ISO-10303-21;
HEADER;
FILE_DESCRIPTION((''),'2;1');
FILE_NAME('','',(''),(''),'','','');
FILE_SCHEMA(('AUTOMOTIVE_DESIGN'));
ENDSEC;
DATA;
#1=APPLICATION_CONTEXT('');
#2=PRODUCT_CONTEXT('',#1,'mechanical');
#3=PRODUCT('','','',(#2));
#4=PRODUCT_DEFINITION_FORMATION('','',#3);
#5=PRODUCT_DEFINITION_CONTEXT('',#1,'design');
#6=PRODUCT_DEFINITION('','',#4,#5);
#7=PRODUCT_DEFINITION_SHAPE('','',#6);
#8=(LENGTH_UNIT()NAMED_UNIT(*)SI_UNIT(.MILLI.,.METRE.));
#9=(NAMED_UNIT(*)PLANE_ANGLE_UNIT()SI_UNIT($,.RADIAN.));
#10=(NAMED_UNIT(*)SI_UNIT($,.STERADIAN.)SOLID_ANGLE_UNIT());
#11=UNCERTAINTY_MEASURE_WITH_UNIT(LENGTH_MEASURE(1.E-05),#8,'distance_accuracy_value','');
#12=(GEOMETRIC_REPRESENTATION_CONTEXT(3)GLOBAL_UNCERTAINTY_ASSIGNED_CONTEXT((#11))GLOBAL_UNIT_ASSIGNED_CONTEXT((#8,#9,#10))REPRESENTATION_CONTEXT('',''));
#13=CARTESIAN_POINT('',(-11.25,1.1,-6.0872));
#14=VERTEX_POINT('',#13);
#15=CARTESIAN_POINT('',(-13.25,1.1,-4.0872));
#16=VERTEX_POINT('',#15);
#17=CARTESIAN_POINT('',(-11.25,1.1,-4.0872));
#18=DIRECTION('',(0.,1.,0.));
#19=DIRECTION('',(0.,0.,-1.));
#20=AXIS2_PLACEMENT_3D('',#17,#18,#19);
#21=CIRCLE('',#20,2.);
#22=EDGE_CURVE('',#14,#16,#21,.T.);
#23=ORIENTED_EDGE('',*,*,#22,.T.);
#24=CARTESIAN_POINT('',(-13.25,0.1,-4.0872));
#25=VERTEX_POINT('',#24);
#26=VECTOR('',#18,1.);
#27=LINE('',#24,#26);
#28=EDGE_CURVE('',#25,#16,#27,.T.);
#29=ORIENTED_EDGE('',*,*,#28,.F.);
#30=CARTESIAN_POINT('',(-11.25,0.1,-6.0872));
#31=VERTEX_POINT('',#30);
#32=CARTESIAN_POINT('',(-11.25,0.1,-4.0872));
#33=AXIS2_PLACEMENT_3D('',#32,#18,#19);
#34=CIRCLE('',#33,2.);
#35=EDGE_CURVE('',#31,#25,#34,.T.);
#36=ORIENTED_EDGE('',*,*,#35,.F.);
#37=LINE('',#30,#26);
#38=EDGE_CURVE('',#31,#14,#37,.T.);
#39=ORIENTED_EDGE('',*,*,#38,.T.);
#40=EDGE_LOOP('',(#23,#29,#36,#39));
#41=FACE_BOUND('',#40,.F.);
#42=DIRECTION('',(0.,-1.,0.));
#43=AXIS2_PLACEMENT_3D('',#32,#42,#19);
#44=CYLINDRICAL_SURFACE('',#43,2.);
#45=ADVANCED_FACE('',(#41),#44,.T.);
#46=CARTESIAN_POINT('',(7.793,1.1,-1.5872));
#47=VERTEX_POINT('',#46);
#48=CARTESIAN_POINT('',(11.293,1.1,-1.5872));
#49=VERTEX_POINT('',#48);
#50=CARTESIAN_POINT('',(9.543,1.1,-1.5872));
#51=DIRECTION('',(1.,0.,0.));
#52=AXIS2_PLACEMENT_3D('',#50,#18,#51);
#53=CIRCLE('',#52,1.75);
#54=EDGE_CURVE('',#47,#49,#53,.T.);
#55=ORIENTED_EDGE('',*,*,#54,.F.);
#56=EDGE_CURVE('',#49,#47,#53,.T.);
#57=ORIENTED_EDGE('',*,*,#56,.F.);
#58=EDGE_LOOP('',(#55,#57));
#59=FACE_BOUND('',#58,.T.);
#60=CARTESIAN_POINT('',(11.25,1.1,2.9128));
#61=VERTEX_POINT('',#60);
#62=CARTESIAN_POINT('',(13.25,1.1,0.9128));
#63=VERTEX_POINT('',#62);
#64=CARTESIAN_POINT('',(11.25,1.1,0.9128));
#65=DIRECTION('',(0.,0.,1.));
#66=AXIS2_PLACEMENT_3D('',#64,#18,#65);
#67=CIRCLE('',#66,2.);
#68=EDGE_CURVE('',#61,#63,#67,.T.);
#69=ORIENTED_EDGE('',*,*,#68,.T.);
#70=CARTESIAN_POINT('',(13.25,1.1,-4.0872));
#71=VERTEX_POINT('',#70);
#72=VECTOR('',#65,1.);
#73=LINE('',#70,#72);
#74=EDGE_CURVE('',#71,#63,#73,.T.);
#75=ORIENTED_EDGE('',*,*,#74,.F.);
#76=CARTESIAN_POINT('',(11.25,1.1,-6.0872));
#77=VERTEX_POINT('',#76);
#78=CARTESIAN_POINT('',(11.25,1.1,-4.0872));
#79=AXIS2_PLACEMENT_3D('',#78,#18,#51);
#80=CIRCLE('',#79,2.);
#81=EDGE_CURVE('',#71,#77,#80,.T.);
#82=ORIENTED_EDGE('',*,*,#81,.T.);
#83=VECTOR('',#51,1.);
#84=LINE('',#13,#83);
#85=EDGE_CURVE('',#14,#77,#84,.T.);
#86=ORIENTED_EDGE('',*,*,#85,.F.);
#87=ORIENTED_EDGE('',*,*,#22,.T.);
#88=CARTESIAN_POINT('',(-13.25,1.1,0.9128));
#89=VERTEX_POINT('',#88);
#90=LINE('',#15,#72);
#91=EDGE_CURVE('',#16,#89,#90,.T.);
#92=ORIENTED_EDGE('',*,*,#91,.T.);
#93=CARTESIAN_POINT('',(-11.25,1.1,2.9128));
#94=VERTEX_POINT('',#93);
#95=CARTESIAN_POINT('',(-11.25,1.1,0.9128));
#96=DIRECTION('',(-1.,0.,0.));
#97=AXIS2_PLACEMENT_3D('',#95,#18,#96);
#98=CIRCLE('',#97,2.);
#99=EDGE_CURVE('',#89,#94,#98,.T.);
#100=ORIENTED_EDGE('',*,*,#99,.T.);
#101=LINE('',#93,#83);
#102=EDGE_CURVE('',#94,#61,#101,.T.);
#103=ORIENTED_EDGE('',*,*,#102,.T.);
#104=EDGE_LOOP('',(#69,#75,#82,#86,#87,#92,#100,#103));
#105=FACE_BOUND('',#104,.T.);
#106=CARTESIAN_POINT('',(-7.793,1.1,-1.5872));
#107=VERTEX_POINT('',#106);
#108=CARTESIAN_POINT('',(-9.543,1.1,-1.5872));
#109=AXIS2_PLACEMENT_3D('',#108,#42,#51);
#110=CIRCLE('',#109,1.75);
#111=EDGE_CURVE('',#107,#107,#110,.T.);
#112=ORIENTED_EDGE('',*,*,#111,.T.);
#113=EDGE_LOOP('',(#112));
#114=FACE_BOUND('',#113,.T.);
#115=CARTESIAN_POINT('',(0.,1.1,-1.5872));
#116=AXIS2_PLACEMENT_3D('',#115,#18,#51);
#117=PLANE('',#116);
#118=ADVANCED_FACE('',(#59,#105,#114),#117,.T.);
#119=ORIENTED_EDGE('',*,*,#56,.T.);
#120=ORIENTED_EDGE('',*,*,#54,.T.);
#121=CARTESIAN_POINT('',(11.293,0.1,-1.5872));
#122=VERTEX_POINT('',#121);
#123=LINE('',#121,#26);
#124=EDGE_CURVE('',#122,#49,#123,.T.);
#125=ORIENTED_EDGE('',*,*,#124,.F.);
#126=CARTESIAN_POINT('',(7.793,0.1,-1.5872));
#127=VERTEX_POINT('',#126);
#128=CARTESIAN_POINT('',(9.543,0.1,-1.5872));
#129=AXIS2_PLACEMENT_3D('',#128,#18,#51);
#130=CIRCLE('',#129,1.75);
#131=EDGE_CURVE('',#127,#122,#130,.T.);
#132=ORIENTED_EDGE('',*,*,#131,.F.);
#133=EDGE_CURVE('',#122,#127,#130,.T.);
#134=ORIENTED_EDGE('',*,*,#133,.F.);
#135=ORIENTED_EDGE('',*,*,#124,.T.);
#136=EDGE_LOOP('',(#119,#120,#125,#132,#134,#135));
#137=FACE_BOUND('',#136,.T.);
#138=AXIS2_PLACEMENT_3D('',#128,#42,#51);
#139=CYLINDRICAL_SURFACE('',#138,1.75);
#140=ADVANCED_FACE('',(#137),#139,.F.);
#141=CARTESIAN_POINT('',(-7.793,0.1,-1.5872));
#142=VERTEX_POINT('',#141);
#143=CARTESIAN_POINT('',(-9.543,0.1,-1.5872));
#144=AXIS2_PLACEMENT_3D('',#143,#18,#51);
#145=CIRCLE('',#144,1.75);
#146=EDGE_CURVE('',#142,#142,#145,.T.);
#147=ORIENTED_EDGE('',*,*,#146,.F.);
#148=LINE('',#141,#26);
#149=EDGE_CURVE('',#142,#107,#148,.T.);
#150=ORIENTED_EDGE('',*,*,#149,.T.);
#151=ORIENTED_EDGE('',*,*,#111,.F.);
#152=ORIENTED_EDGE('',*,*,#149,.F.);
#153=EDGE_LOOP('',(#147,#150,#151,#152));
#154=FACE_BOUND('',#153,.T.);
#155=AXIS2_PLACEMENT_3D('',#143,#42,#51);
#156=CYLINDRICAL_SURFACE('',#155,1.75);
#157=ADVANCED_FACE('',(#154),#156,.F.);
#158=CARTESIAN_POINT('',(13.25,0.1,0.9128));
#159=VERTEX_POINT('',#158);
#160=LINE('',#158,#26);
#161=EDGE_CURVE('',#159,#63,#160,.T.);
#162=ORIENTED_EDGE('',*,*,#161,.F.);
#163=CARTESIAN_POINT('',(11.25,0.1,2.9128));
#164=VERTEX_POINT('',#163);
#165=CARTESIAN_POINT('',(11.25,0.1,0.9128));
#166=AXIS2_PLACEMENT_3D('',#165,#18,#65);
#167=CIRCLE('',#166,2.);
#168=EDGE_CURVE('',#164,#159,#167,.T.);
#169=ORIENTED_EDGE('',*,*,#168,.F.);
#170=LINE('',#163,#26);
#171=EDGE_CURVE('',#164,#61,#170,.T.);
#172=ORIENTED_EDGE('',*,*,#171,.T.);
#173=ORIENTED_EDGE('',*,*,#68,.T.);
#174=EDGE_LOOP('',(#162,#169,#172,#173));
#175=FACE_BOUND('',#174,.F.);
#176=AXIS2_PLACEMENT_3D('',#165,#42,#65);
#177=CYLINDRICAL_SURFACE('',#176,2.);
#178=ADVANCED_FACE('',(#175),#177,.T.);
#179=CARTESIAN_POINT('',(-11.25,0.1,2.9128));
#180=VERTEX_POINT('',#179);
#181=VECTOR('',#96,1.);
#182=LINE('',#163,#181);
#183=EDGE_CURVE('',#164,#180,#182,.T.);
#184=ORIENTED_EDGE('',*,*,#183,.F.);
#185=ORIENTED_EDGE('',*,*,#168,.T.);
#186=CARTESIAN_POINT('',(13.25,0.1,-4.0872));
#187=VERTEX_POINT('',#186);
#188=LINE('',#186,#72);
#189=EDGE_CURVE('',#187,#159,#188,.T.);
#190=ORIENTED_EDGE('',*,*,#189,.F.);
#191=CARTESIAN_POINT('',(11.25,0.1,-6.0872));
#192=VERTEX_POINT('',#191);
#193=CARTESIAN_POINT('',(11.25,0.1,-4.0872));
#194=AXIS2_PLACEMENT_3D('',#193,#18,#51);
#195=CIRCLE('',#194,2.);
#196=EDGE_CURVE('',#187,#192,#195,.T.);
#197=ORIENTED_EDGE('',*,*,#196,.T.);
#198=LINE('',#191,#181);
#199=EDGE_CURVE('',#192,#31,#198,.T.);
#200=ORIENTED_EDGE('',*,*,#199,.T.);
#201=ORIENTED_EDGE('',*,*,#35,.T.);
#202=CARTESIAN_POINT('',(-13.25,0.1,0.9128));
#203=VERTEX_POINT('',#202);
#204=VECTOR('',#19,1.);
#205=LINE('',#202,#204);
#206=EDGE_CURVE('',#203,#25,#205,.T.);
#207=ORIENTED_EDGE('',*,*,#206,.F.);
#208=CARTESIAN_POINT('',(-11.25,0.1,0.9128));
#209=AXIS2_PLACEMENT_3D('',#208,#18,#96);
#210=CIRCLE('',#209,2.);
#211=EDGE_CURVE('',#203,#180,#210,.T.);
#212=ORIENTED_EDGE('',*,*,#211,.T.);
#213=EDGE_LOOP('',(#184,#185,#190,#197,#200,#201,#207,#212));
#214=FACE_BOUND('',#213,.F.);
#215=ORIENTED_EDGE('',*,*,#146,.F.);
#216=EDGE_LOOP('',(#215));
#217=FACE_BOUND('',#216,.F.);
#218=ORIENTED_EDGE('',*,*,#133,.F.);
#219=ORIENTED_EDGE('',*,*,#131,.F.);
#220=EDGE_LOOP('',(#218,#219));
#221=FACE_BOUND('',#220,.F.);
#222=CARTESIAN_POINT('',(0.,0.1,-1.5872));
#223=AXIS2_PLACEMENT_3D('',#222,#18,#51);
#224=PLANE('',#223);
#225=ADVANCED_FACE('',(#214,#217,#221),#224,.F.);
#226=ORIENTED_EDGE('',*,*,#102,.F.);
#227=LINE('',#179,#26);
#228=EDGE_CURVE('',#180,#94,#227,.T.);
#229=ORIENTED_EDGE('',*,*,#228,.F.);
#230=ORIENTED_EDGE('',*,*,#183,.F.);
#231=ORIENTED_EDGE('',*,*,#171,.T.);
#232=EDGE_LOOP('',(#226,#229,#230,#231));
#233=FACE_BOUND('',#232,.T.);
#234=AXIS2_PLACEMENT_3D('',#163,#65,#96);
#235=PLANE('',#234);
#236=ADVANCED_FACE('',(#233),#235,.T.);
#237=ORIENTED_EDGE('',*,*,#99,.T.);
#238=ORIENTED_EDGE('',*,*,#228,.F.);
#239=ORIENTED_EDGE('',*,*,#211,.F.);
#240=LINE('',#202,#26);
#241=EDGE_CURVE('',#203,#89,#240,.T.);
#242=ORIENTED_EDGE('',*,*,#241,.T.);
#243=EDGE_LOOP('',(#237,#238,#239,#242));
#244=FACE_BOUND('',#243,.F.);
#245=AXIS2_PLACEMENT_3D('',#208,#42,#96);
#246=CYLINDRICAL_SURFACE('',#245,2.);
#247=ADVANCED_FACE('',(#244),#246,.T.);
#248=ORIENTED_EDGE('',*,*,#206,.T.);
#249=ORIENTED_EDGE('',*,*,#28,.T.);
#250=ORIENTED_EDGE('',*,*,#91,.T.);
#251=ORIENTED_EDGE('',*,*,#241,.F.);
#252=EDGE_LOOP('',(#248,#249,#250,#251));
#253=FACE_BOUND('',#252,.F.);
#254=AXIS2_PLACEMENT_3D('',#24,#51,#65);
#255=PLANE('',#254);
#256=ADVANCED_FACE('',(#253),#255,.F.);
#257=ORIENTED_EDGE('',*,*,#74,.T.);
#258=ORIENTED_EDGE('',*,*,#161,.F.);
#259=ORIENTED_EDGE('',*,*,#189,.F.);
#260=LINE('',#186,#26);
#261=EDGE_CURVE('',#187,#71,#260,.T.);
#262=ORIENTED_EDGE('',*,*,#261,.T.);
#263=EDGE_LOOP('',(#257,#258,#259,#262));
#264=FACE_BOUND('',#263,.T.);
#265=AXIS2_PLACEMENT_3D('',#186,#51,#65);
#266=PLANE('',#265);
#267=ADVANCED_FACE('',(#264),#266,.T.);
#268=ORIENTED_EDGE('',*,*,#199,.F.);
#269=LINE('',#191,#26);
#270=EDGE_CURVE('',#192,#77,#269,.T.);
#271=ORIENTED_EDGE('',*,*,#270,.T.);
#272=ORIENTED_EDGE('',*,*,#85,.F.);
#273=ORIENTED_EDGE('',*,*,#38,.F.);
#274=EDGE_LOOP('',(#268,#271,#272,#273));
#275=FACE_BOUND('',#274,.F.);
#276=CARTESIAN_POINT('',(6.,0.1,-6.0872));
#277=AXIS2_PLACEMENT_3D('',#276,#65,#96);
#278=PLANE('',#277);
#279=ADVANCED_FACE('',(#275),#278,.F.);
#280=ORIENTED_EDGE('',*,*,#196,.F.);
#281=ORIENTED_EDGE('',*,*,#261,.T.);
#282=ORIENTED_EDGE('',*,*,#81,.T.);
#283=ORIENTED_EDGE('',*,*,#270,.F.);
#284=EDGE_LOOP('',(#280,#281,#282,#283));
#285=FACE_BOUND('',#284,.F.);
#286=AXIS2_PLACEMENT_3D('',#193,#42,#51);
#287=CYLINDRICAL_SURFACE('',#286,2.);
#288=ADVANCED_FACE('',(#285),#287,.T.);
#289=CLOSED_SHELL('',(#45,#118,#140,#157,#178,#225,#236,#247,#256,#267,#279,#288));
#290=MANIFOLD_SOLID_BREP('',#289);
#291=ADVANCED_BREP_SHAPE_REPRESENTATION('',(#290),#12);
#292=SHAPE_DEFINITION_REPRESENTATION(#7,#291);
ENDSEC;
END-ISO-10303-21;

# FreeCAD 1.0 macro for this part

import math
import FreeCAD as App
import Part
import Sketcher

V = App.Vector

doc = App.newDocument("Part")
params = doc.addObject("Spreadsheet::Sheet", "Params")
for row, (alias, value) in enumerate([
    ("sketch1_radius", "2 mm"),
    ("sketch1_diameter", "3.5 mm"),
    ("sketch1_width", "22.5 mm"),
    ("pad1_length", "1 mm"),
], start=1):
    params.set(f"A{row}", alias)
    params.set(f"B{row}", "=" + value)
    params.setAlias(f"B{row}", alias)

body = doc.addObject("PartDesign::Body", "Body")

# Sketch on XZ plane
sketch1 = doc.addObject("Sketcher::SketchObject", "Sketch")
body.addObject(sketch1)
sketch1.AttachmentSupport = (doc.XZ_Plane, [""])
sketch1.MapMode = "FlatFace"
sketch1.AttachmentOffset = App.Placement(V(0, 0, -0.1), App.Rotation())
sketch1.addGeometry([
    Part.ArcOfCircle(Part.Circle(V(-11.2, -4.1, 0), V(0, 0, 1), 2), math.radians(180), math.radians(270)),  # 0
    Part.LineSegment(V(-13.2, -4.1, 0), V(-13.2, 0.9, 0)),  # 1
    Part.ArcOfCircle(Part.Circle(V(-11.2, 0.9, 0), V(0, 0, 1), 2), math.radians(90), math.radians(180)),  # 2
    Part.LineSegment(V(-11.2, 2.9, 0), V(11.2, 2.9, 0)),  # 3
    Part.ArcOfCircle(Part.Circle(V(11.2, 0.9, 0), V(0, 0, 1), 2), math.radians(0), math.radians(90)),  # 4
    Part.LineSegment(V(13.2, 0.9, 0), V(13.2, -4.1, 0)),  # 5
    Part.ArcOfCircle(Part.Circle(V(11.2, -4.1, 0), V(0, 0, 1), 2), math.radians(-90), math.radians(0)),  # 6
    Part.LineSegment(V(11.2, -6.1, 0), V(-11.2, -6.1, 0)),  # 7
    Part.Circle(V(9.5, -1.6, 0), V(0, 0, 1), 1.8),  # 8
    Part.Circle(V(-9.5, -1.6, 0), V(0, 0, 1), 1.8),  # 9
], False)
sketch1.addConstraint([
    Sketcher.Constraint("Tangent", 0, 1, 1, 1),
    Sketcher.Constraint("Tangent", 1, 2, 2, 2),
    Sketcher.Constraint("Tangent", 2, 1, 3, 1),
    Sketcher.Constraint("Tangent", 3, 2, 4, 2),
    Sketcher.Constraint("Tangent", 4, 1, 5, 1),
    Sketcher.Constraint("Tangent", 5, 2, 6, 2),
    Sketcher.Constraint("Tangent", 6, 1, 7, 1),
    Sketcher.Constraint("Tangent", 7, 2, 0, 2),
    Sketcher.Constraint("Vertical", 1),
    Sketcher.Constraint("Horizontal", 3),
    Sketcher.Constraint("Vertical", 5),
    Sketcher.Constraint("Horizontal", 7),
    Sketcher.Constraint("Equal", 0, 2),
    Sketcher.Constraint("Equal", 2, 4),
    Sketcher.Constraint("Equal", 4, 6),
    Sketcher.Constraint("Equal", 8, 9),
    Sketcher.Constraint("Symmetric", 8, 3, 9, 3, -2),
    Sketcher.Constraint("Radius", 0, 2.0),
    Sketcher.Constraint("Diameter", 8, 3.5),
    Sketcher.Constraint("DistanceY", 9, 3, 2, 1, 4.5),
    Sketcher.Constraint("DistanceY", 6, 1, 8, 3, 4.5),
    Sketcher.Constraint("DistanceX", 3, 1, 3, 2, 22.5),
    Sketcher.Constraint("DistanceX", 9, 3, 8, 3, 19.086),
    Sketcher.Constraint("DistanceX", 0, 1, 9, 3, 3.707),
    Sketcher.Constraint("DistanceY", 0, 3, -1, 1, 4.0872),
])
sketch1.setExpression("Constraints[17]", "Params.sketch1_radius")
sketch1.setExpression("Constraints[18]", "Params.sketch1_diameter")
sketch1.setExpression("Constraints[21]", "Params.sketch1_width")
pad1 = doc.addObject("PartDesign::Pad", "Pad")
body.addObject(pad1)
pad1.Profile = sketch1
pad1.setExpression("Length", "Params.pad1_length")
pad1.Reversed = True

doc.recompute()
